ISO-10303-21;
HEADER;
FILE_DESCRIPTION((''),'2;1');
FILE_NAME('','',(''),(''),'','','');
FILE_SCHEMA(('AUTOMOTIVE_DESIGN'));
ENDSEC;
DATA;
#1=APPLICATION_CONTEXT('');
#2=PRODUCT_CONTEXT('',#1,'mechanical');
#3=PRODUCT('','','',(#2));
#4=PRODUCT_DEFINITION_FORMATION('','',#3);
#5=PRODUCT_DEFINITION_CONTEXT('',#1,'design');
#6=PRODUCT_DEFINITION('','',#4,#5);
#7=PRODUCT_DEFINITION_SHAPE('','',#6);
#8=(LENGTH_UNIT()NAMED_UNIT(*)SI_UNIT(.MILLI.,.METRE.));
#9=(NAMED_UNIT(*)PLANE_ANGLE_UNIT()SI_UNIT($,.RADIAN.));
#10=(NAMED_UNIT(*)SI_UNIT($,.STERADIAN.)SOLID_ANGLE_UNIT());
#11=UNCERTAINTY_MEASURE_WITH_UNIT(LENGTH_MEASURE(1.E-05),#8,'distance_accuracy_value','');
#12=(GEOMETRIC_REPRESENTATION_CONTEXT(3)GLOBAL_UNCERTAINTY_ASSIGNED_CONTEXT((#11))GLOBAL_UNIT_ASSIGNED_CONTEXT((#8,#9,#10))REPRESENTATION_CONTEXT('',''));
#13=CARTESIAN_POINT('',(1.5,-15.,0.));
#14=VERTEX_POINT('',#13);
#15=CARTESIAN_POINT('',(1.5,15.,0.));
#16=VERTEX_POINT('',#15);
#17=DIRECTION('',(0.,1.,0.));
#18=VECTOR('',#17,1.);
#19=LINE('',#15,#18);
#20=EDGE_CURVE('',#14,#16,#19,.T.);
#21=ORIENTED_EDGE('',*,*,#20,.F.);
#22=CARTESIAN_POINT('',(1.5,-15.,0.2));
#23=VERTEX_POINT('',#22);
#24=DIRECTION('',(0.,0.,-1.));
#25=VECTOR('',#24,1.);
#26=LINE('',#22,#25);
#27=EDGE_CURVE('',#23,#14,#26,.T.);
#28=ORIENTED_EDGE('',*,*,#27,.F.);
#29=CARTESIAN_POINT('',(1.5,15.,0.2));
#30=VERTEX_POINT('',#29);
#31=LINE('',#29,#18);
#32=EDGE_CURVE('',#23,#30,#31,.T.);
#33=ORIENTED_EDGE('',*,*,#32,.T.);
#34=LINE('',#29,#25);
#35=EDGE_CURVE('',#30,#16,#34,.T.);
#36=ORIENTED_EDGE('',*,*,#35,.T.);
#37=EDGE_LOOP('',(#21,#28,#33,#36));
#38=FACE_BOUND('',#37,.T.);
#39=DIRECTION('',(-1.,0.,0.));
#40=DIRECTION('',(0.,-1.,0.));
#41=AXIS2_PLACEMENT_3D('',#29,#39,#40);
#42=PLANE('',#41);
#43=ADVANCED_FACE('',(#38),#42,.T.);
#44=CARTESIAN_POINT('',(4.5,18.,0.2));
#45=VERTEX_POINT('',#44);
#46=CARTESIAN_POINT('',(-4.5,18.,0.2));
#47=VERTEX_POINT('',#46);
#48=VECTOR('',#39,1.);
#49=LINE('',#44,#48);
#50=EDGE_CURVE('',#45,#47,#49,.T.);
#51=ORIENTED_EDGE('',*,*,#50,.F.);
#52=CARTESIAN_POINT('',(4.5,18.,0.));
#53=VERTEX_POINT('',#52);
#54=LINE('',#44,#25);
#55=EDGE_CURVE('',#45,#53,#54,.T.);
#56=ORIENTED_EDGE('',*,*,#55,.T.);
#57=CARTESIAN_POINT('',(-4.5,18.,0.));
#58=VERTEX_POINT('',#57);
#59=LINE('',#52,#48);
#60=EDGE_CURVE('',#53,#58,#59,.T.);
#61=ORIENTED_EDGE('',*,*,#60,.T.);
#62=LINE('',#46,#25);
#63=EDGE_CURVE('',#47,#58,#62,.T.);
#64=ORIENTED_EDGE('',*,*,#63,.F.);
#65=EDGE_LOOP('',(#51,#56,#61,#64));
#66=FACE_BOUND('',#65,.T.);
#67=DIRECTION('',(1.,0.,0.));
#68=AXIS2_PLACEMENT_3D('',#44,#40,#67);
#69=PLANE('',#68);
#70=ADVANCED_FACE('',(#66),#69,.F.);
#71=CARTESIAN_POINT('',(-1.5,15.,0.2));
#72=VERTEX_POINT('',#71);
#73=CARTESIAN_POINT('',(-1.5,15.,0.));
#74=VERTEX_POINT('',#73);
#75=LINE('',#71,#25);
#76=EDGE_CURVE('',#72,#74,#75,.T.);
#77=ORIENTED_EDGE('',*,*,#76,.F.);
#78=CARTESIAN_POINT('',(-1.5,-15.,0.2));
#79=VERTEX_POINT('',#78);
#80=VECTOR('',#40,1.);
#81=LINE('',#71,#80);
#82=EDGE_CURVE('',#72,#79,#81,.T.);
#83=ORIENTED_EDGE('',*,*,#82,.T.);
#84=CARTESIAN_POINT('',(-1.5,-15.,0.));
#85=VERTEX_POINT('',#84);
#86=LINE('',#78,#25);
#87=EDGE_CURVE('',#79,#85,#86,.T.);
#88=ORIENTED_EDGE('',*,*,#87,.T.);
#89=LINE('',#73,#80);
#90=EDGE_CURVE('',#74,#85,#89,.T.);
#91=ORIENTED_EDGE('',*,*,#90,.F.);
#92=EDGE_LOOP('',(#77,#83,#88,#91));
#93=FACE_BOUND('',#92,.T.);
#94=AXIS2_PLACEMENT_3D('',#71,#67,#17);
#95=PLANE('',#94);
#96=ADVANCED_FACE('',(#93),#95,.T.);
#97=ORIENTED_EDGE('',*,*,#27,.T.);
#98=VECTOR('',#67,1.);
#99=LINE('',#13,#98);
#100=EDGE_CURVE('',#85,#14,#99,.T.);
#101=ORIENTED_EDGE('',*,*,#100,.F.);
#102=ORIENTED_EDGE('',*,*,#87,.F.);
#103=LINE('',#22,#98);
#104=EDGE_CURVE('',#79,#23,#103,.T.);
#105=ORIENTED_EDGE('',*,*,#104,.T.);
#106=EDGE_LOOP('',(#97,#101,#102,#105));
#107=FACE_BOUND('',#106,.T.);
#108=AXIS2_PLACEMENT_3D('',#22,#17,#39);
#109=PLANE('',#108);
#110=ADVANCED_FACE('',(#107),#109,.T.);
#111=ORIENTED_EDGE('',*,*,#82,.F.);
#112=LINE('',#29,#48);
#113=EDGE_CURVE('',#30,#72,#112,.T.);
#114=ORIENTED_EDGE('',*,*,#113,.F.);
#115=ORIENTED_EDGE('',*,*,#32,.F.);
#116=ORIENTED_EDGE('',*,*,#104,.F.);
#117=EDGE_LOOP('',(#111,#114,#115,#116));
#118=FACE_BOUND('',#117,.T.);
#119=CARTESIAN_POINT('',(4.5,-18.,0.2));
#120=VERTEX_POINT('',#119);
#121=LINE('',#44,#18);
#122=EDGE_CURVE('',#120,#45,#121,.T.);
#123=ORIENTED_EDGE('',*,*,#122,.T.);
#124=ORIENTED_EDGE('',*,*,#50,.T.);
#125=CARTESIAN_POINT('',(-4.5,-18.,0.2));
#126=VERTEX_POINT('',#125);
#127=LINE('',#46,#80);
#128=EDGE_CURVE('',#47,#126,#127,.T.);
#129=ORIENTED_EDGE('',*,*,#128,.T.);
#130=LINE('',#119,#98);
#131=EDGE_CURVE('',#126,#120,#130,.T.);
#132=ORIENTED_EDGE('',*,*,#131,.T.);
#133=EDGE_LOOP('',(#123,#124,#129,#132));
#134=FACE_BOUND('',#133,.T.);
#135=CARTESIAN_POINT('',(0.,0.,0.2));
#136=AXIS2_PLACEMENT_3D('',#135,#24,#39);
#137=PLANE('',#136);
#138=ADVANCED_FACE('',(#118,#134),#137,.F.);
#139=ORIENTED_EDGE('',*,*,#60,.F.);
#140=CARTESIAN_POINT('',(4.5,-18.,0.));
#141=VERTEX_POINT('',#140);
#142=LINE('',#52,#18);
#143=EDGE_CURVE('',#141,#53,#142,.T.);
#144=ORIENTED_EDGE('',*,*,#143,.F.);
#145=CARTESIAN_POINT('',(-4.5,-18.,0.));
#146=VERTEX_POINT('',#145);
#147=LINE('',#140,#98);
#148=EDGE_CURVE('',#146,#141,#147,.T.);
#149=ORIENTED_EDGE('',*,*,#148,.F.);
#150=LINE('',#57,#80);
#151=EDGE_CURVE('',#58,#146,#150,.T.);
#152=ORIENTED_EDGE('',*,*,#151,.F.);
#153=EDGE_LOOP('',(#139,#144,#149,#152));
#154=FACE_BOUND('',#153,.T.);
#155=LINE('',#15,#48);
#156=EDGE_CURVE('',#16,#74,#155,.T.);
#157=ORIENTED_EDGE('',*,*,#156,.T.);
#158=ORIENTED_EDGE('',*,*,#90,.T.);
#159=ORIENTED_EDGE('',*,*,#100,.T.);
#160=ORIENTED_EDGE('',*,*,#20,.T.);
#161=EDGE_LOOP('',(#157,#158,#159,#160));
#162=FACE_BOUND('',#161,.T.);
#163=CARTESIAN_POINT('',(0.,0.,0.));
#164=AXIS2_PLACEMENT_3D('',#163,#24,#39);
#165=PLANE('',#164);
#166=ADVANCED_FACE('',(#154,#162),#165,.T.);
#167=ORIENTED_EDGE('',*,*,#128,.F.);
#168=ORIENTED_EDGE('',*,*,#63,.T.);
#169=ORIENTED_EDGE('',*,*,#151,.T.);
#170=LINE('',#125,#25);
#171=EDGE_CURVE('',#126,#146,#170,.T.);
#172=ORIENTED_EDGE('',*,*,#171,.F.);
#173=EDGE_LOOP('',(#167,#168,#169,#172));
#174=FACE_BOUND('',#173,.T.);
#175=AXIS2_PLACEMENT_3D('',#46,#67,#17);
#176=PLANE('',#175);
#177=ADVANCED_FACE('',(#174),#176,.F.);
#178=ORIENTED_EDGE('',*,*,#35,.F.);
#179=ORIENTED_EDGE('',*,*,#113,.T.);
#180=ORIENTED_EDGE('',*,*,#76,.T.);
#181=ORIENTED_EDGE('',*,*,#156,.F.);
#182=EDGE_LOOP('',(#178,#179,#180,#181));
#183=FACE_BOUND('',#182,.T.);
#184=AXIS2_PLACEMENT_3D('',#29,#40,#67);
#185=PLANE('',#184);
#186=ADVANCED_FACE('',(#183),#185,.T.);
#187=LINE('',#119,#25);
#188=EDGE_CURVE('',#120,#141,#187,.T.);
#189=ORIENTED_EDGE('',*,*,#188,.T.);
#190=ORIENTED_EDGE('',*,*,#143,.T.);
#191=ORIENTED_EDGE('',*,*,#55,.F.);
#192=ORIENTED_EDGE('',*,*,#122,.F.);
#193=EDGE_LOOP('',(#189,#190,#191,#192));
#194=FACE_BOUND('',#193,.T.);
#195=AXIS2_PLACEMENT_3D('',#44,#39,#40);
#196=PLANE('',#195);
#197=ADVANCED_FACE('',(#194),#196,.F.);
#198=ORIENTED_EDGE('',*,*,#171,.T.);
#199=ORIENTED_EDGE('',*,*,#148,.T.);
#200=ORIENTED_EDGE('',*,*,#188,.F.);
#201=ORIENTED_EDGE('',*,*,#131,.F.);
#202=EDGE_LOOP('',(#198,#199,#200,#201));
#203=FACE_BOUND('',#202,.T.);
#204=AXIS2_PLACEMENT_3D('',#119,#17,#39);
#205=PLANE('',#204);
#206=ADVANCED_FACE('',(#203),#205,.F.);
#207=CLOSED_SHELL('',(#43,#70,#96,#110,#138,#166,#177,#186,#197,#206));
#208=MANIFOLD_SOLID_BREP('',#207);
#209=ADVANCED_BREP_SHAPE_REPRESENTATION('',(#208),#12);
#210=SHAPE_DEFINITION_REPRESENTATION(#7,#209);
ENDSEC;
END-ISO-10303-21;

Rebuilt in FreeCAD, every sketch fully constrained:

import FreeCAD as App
import Part
import Sketcher

V = App.Vector
Q = App.Units.Quantity


def add_polygon(sketch, points):
    """Adds a closed chain of lines whose ends are joined by coincident constraints."""
    first, n = sketch.GeometryCount, len(points)
    for a, b in zip(points, points[1:] + points[:1]):
        sketch.addGeometry(Part.LineSegment(App.Vector(*a, 0), App.Vector(*b, 0)), False)
    for i in range(n):
        sketch.addConstraint(Sketcher.Constraint("Coincident", first + i, 2, first + (i + 1) % n, 1))

doc = App.newDocument("Part")
body = doc.addObject("PartDesign::Body", "Body")

# Sketch on XY plane
sketch1 = body.newObject("Sketcher::SketchObject", "Sketch")
sketch1.AttachmentSupport = (doc.getObject("XY_Plane"), [""])
sketch1.MapMode = "FlatFace"
add_polygon(sketch1, [(-4.5, 18), (-4.5, -18), (4.5, -18), (4.5, 18)])  # lines 0-3
add_polygon(sketch1, [(1.5, -15), (-1.5, -15), (-1.5, 15), (1.5, 15)])  # lines 4-7
sketch1.addConstraint([
    Sketcher.Constraint("Vertical", 0),
    Sketcher.Constraint("Horizontal", 1),
    Sketcher.Constraint("Vertical", 2),
    Sketcher.Constraint("Horizontal", 3),
    Sketcher.Constraint("Horizontal", 4),
    Sketcher.Constraint("Vertical", 5),
    Sketcher.Constraint("Horizontal", 6),
    Sketcher.Constraint("Vertical", 7),
    Sketcher.Constraint("Symmetric", 0, 2, 2, 2, -1, 1),
    Sketcher.Constraint("Symmetric", 4, 2, 6, 2, -1, 1),
    Sketcher.Constraint("DistanceX", 1, 1, 1, 2, Q("9 mm")),
    Sketcher.Constraint("DistanceX", 4, 2, 4, 1, Q("3 mm")),
    Sketcher.Constraint("DistanceY", 0, 2, 0, 1, Q("36 mm")),
    Sketcher.Constraint("DistanceY", 5, 1, 5, 2, Q("30 mm")),
])
pad1 = body.newObject("PartDesign::Pad", "Pad")
pad1.Profile = sketch1
pad1.Length = 0.2

doc.recompute()
